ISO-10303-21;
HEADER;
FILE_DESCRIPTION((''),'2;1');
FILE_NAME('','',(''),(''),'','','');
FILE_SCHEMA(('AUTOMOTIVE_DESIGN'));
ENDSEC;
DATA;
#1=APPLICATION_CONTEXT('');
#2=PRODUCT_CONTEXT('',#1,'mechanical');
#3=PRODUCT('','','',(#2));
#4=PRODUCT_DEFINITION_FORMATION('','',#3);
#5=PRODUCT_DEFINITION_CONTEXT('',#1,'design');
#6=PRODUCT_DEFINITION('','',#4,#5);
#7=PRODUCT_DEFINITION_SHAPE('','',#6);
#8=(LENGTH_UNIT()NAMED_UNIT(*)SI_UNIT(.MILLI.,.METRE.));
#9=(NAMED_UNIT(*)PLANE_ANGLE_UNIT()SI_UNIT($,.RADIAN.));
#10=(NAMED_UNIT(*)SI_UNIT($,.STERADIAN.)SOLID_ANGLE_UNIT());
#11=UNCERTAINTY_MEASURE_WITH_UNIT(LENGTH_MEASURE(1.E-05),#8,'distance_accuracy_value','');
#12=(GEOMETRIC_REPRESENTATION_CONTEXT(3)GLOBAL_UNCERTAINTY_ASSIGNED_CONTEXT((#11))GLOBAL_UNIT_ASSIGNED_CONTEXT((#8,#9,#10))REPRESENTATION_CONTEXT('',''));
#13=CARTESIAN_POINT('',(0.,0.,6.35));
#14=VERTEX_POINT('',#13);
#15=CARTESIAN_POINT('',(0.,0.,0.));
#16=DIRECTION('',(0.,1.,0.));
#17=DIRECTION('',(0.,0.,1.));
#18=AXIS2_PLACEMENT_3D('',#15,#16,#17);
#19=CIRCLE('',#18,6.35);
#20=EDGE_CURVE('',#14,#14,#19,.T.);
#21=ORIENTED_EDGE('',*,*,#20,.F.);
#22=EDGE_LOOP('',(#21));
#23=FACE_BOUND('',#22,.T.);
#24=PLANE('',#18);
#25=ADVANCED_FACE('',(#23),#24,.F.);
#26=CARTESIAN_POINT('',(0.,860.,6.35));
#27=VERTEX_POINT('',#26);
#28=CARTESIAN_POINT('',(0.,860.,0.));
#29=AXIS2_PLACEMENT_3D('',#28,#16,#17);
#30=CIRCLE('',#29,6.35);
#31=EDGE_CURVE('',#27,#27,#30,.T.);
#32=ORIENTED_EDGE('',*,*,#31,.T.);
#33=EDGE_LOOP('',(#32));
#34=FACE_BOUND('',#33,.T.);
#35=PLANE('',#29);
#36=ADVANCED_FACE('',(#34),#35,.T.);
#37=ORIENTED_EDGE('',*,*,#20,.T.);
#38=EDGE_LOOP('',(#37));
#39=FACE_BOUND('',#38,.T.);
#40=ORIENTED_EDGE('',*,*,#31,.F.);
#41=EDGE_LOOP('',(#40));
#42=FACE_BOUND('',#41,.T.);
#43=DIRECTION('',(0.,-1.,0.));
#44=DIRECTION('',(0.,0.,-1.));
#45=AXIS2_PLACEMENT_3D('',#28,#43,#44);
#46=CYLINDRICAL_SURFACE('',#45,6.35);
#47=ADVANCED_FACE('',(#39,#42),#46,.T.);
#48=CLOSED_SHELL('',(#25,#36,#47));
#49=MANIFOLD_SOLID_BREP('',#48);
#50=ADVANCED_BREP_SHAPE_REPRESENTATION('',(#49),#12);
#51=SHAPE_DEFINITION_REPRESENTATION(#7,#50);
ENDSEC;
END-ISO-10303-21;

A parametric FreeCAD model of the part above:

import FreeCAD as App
import Part
import Sketcher
from FreeCAD import Vector

doc = App.newDocument("Part")
params = doc.addObject("Spreadsheet::Sheet", "Params")
for row, (alias, value) in enumerate([
    ("sketch1_diameter", "12.7 mm"),
    ("sketch2_height", "860 mm"),
], start=1):
    params.set(f"A{row}", alias)
    params.set(f"B{row}", "=" + value)
    params.setAlias(f"B{row}", alias)

body = doc.addObject("PartDesign::Body", "Body")

# Sketch on XZ plane
sketch1 = body.newObject("Sketcher::SketchObject", "Sketch")
sketch1.AttachmentSupport = (doc.getObject("XZ_Plane"), [""])
sketch1.MapMode = "FlatFace"
sketch1.addGeometry(Part.Circle(Vector(0, 0, 0), Vector(0, 0, 1), 6.35), False)
sketch1.addConstraint([
    Sketcher.Constraint("Coincident", 0, 3, -1, 1),
    Sketcher.Constraint("Diameter", 0, 12.7),
])
sketch1.setExpression("Constraints[1]", "Params.sketch1_diameter")

# Sketch on XY plane
sketch2 = body.newObject("Sketcher::SketchObject", "Sketch001")
sketch2.AttachmentSupport = (doc.getObject("XY_Plane"), [""])
sketch2.MapMode = "FlatFace"
sketch2.addGeometry(Part.LineSegment(Vector(0, 0, 0), Vector(0, 860, 0)), False)
sketch2.addConstraint([
    Sketcher.Constraint("Vertical", 0),
    Sketcher.Constraint("Coincident", 0, 1, -1, 1),
    Sketcher.Constraint("DistanceY", 0, 1, 0, 2, 860.0),
])
sketch2.setExpression("Constraints[2]", "Params.sketch2_height")
doc.recompute()

additivepipe = body.newObject("PartDesign::AdditivePipe", "AdditivePipe")
additivepipe.Profile = sketch1
additivepipe.Spine = (sketch2, ["Edge1"])

doc.recompute()
